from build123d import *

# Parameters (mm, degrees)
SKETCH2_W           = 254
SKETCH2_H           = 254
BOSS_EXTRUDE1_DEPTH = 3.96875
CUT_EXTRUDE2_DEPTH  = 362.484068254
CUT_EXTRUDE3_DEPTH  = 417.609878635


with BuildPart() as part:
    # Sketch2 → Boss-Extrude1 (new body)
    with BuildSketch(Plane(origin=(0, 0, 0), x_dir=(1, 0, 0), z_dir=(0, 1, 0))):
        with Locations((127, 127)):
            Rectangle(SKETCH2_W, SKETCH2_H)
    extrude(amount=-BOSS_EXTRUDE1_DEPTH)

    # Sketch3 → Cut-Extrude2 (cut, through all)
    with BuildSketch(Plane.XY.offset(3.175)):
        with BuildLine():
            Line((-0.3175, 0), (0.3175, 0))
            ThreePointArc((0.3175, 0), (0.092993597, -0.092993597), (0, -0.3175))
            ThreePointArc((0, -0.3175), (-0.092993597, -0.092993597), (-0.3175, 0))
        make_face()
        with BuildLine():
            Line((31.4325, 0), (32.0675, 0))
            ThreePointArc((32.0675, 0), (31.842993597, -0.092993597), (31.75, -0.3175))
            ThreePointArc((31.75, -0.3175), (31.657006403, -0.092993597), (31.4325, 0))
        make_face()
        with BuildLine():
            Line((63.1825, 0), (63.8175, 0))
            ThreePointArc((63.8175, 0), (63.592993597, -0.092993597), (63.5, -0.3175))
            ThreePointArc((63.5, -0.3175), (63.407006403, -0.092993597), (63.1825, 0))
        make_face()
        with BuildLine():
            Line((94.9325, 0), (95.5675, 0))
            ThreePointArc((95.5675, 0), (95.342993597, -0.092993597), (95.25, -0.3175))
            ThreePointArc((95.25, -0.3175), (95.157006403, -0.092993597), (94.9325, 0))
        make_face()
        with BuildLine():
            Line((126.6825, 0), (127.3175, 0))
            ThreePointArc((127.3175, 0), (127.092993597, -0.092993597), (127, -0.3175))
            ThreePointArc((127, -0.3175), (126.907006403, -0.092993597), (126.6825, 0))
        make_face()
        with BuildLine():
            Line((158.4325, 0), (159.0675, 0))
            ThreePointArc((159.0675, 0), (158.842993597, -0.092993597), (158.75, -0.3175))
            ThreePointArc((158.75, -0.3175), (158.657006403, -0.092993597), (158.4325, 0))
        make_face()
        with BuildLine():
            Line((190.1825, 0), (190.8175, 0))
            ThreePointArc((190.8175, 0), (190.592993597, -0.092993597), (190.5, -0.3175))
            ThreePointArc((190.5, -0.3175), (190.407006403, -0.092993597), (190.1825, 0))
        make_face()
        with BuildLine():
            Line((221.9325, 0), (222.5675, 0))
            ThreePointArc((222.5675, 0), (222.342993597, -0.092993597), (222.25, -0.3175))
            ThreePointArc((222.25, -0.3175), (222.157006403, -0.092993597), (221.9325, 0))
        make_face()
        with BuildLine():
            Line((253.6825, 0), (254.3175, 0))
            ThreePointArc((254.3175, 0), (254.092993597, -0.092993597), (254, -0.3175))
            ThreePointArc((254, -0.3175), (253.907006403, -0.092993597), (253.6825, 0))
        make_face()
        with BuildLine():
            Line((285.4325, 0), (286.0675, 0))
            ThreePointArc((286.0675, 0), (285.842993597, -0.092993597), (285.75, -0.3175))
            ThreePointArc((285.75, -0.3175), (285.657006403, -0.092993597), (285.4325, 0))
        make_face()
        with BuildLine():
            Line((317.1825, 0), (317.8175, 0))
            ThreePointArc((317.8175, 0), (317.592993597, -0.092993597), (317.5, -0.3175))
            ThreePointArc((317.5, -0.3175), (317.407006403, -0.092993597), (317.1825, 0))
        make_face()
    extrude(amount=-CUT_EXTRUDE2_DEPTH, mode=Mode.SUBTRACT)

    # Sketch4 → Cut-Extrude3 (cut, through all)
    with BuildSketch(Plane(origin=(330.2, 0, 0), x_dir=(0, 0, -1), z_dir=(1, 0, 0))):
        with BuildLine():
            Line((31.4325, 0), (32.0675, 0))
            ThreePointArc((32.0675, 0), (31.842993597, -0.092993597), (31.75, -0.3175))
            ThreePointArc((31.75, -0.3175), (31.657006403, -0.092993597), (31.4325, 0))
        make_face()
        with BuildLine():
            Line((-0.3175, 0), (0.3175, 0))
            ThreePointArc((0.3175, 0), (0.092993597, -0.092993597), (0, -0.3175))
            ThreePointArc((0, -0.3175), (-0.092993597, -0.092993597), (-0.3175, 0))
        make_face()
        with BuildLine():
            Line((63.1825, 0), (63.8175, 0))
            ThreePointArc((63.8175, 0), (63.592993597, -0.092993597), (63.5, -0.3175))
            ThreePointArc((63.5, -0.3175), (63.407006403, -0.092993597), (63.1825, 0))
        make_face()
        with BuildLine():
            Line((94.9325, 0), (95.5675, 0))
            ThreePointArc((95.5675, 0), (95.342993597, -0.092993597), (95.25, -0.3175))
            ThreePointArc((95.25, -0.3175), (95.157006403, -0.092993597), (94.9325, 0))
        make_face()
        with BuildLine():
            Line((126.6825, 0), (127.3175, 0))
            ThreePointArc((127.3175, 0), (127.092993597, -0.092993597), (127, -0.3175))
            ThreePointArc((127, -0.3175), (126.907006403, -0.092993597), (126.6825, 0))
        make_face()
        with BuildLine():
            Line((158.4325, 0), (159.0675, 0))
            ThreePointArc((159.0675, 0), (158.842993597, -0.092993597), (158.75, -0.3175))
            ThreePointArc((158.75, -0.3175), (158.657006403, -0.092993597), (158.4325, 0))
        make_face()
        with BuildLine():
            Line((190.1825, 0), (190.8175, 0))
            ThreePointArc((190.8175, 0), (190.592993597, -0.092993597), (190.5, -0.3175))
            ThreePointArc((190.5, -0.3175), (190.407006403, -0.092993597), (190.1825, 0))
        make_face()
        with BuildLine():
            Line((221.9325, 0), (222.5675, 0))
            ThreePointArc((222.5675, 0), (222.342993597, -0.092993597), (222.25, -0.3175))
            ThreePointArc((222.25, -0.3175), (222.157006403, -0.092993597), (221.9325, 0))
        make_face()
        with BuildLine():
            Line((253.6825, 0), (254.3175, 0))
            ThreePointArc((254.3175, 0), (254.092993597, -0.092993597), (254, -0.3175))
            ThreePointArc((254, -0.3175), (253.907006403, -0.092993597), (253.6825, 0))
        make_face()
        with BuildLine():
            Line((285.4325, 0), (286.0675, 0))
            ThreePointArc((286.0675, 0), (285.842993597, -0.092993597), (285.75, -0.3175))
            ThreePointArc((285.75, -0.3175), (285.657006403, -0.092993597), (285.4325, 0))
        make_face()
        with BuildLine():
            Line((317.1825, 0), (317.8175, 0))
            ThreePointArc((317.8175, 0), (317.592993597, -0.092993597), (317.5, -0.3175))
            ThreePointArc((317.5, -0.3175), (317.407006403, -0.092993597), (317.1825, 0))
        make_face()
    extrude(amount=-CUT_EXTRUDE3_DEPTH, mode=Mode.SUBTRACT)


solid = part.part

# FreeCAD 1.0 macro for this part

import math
import FreeCAD as App
import Part
import Sketcher

V = App.Vector
Q = App.Units.Quantity

doc = App.newDocument("Part")
body = doc.addObject("PartDesign::Body", "Body")

# Sketch on XZ plane
sketch1 = doc.addObject("Sketcher::SketchObject", "Sketch")
body.addObject(sketch1)
sketch1.AttachmentSupport = (doc.XZ_Plane, [""])
sketch1.MapMode = "FlatFace"
sketch1.addGeometry([
    Part.LineSegment(V(0, -254, 0), V(0, 0, 0)),
    Part.LineSegment(V(0, 0, 0), V(254, 0, 0)),
    Part.LineSegment(V(254, 0, 0), V(254, -254, 0)),
    Part.LineSegment(V(254, -254, 0), V(0, -254, 0)),
], False)
sketch1.addConstraint([
    Sketcher.Constraint("Coincident", 0, 2, 1, 1),
    Sketcher.Constraint("Coincident", 1, 2, 2, 1),
    Sketcher.Constraint("Coincident", 2, 2, 3, 1),
    Sketcher.Constraint("Coincident", 3, 2, 0, 1),
    Sketcher.Constraint("Vertical", 0),
    Sketcher.Constraint("Horizontal", 1),
    Sketcher.Constraint("Vertical", 2),
    Sketcher.Constraint("Horizontal", 3),
    Sketcher.Constraint("Coincident", 0, 2, -1, 1),
    Sketcher.Constraint("Equal", 3, 0),
    Sketcher.Constraint("DistanceX", 1, 1, 1, 2, Q("10 in")),
])
pad1 = doc.addObject("PartDesign::Pad", "Pad")
body.addObject(pad1)
pad1.Profile = sketch1
pad1.Length = Q("0.15625 in")

# Sketch on XY plane
sketch2 = doc.addObject("Sketcher::SketchObject", "Sketch001")
body.addObject(sketch2)
sketch2.AttachmentSupport = (doc.XY_Plane, [""])
sketch2.MapMode = "FlatFace"
sketch2.AttachmentOffset = App.Placement(V(0, 0, 0.125 * 25.4), App.Rotation())
sketch2.addGeometry([
    Part.LineSegment(V(0.32, 0, 0), V(-0.32, 0, 0)),  # 0
    Part.ArcOfCircle(Part.Circle(V(-0.32, -0.32, 0), V(0, 0, 1), 0.32), math.radians(0), math.radians(90)),  # 1
    Part.ArcOfCircle(Part.Circle(V(0.32, -0.32, 0), V(0, 0, 1), 0.32), math.radians(90), math.radians(180)),  # 2
    Part.LineSegment(V(32.07, 0, 0), V(31.43, 0, 0)),  # 3
    Part.ArcOfCircle(Part.Circle(V(31.43, -0.32, 0), V(0, 0, 1), 0.32), math.radians(0), math.radians(90)),  # 4
    Part.ArcOfCircle(Part.Circle(V(32.07, -0.32, 0), V(0, 0, 1), 0.32), math.radians(90), math.radians(180)),  # 5
    Part.LineSegment(V(63.82, 0, 0), V(63.18, 0, 0)),  # 6
    Part.ArcOfCircle(Part.Circle(V(63.18, -0.32, 0), V(0, 0, 1), 0.32), math.radians(0), math.radians(90)),  # 7
    Part.ArcOfCircle(Part.Circle(V(63.82, -0.32, 0), V(0, 0, 1), 0.32), math.radians(90), math.radians(180)),  # 8
    Part.LineSegment(V(95.57, 0, 0), V(94.93, 0, 0)),  # 9
    Part.ArcOfCircle(Part.Circle(V(94.93, -0.32, 0), V(0, 0, 1), 0.32), math.radians(0), math.radians(90)),  # 10
    Part.ArcOfCircle(Part.Circle(V(95.57, -0.32, 0), V(0, 0, 1), 0.32), math.radians(90), math.radians(180)),  # 11
    Part.LineSegment(V(127.32, 0, 0), V(126.68, 0, 0)),  # 12
    Part.ArcOfCircle(Part.Circle(V(126.68, -0.32, 0), V(0, 0, 1), 0.32), math.radians(0), math.radians(90)),  # 13
    Part.ArcOfCircle(Part.Circle(V(127.32, -0.32, 0), V(0, 0, 1), 0.32), math.radians(90), math.radians(180)),  # 14
    Part.LineSegment(V(159.07, 0, 0), V(158.43, 0, 0)),  # 15
    Part.ArcOfCircle(Part.Circle(V(158.43, -0.32, 0), V(0, 0, 1), 0.32), math.radians(0), math.radians(90)),  # 16
    Part.ArcOfCircle(Part.Circle(V(159.07, -0.32, 0), V(0, 0, 1), 0.32), math.radians(90), math.radians(180)),  # 17
    Part.LineSegment(V(190.82, 0, 0), V(190.18, 0, 0)),  # 18
    Part.ArcOfCircle(Part.Circle(V(190.18, -0.32, 0), V(0, 0, 1), 0.32), math.radians(0), math.radians(90)),  # 19
    Part.ArcOfCircle(Part.Circle(V(190.82, -0.32, 0), V(0, 0, 1), 0.32), math.radians(90), math.radians(180)),  # 20
    Part.LineSegment(V(222.57, 0, 0), V(221.93, 0, 0)),  # 21
    Part.ArcOfCircle(Part.Circle(V(221.93, -0.32, 0), V(0, 0, 1), 0.32), math.radians(0), math.radians(90)),  # 22
    Part.ArcOfCircle(Part.Circle(V(222.57, -0.32, 0), V(0, 0, 1), 0.32), math.radians(90), math.radians(180)),  # 23
    Part.LineSegment(V(254.32, 0, 0), V(253.68, 0, 0)),  # 24
    Part.ArcOfCircle(Part.Circle(V(253.68, -0.32, 0), V(0, 0, 1), 0.32), math.radians(0), math.radians(90)),  # 25
    Part.ArcOfCircle(Part.Circle(V(254.32, -0.32, 0), V(0, 0, 1), 0.32), math.radians(90), math.radians(180)),  # 26
    Part.LineSegment(V(286.07, 0, 0), V(285.43, 0, 0)),  # 27
    Part.ArcOfCircle(Part.Circle(V(285.43, -0.32, 0), V(0, 0, 1), 0.32), math.radians(0), math.radians(90)),  # 28
    Part.ArcOfCircle(Part.Circle(V(286.07, -0.32, 0), V(0, 0, 1), 0.32), math.radians(90), math.radians(180)),  # 29
    Part.LineSegment(V(317.82, 0, 0), V(317.18, 0, 0)),  # 30
    Part.ArcOfCircle(Part.Circle(V(317.18, -0.32, 0), V(0, 0, 1), 0.32), math.radians(0), math.radians(90)),  # 31
    Part.ArcOfCircle(Part.Circle(V(317.82, -0.32, 0), V(0, 0, 1), 0.32), math.radians(90), math.radians(180)),  # 32
], False)
sketch2.addConstraint([
    Sketcher.Constraint("Tangent", 0, 2, 1, 2),
    Sketcher.Constraint("Tangent", 1, 1, 2, 2),
    Sketcher.Constraint("Tangent", 2, 1, 0, 1),
    Sketcher.Constraint("Tangent", 3, 2, 4, 2),
    Sketcher.Constraint("Tangent", 4, 1, 5, 2),
    Sketcher.Constraint("Tangent", 5, 1, 3, 1),
    Sketcher.Constraint("Tangent", 6, 2, 7, 2),
    Sketcher.Constraint("Tangent", 7, 1, 8, 2),
    Sketcher.Constraint("Tangent", 8, 1, 6, 1),
    Sketcher.Constraint("Tangent", 9, 2, 10, 2),
    Sketcher.Constraint("Tangent", 10, 1, 11, 2),
    Sketcher.Constraint("Tangent", 11, 1, 9, 1),
    Sketcher.Constraint("Tangent", 12, 2, 13, 2),
    Sketcher.Constraint("Tangent", 13, 1, 14, 2),
    Sketcher.Constraint("Tangent", 14, 1, 12, 1),
    Sketcher.Constraint("Tangent", 15, 2, 16, 2),
    Sketcher.Constraint("Tangent", 16, 1, 17, 2),
    Sketcher.Constraint("Tangent", 17, 1, 15, 1),
    Sketcher.Constraint("Tangent", 18, 2, 19, 2),
    Sketcher.Constraint("Tangent", 19, 1, 20, 2),
    Sketcher.Constraint("Tangent", 20, 1, 18, 1),
    Sketcher.Constraint("Tangent", 21, 2, 22, 2),
    Sketcher.Constraint("Tangent", 22, 1, 23, 2),
    Sketcher.Constraint("Tangent", 23, 1, 21, 1),
    Sketcher.Constraint("Tangent", 24, 2, 25, 2),
    Sketcher.Constraint("Tangent", 25, 1, 26, 2),
    Sketcher.Constraint("Tangent", 26, 1, 24, 1),
    Sketcher.Constraint("Tangent", 27, 2, 28, 2),
    Sketcher.Constraint("Tangent", 28, 1, 29, 2),
    Sketcher.Constraint("Tangent", 29, 1, 27, 1),
    Sketcher.Constraint("Tangent", 30, 2, 31, 2),
    Sketcher.Constraint("Tangent", 31, 1, 32, 2),
    Sketcher.Constraint("Tangent", 32, 1, 30, 1),
    Sketcher.Constraint("Horizontal", 0),
    Sketcher.Constraint("Horizontal", 3),
    Sketcher.Constraint("Horizontal", 6),
    Sketcher.Constraint("Horizontal", 9),
    Sketcher.Constraint("Horizontal", 12),
    Sketcher.Constraint("Horizontal", 15),
    Sketcher.Constraint("Horizontal", 18),
    Sketcher.Constraint("Horizontal", 21),
    Sketcher.Constraint("Horizontal", 24),
    Sketcher.Constraint("Horizontal", 27),
    Sketcher.Constraint("Horizontal", 30),
    Sketcher.Constraint("Equal", 1, 2),
    Sketcher.Constraint("Equal", 2, 4),
    Sketcher.Constraint("Equal", 4, 5),
    Sketcher.Constraint("Equal", 5, 7),
    Sketcher.Constraint("Equal", 7, 8),
    Sketcher.Constraint("Equal", 8, 10),
    Sketcher.Constraint("Equal", 10, 11),
    Sketcher.Constraint("Equal", 11, 13),
    Sketcher.Constraint("Equal", 13, 14),
    Sketcher.Constraint("Equal", 14, 16),
    Sketcher.Constraint("Equal", 16, 17),
    Sketcher.Constraint("Equal", 17, 19),
    Sketcher.Constraint("Equal", 19, 20),
    Sketcher.Constraint("Equal", 20, 22),
    Sketcher.Constraint("Equal", 22, 23),
    Sketcher.Constraint("Equal", 23, 25),
    Sketcher.Constraint("Equal", 25, 26),
    Sketcher.Constraint("Equal", 26, 28),
    Sketcher.Constraint("Equal", 28, 29),
    Sketcher.Constraint("Equal", 29, 31),
    Sketcher.Constraint("Equal", 31, 32),
    Sketcher.Constraint("Symmetric", 0, 2, 2, 1, -1, 1),
    Sketcher.Constraint("PointOnObject", 3, 2, -1),
    Sketcher.Constraint("PointOnObject", 6, 2, -1),
    Sketcher.Constraint("PointOnObject", 9, 2, -1),
    Sketcher.Constraint("PointOnObject", 12, 2, -1),
    Sketcher.Constraint("PointOnObject", 15, 2, -1),
    Sketcher.Constraint("PointOnObject", 18, 2, -1),
    Sketcher.Constraint("PointOnObject", 21, 2, -1),
    Sketcher.Constraint("PointOnObject", 24, 2, -1),
    Sketcher.Constraint("PointOnObject", 27, 2, -1),
    Sketcher.Constraint("PointOnObject", 30, 2, -1),
    Sketcher.Constraint("DistanceX", -1, 1, 13, 1, Q("5 in")),
    Sketcher.Constraint("DistanceX", -1, 1, 25, 1, Q("10 in")),
    Sketcher.Constraint("DistanceX", -1, 1, 7, 1, Q("2.5 in")),
    Sketcher.Constraint("DistanceX", -1, 1, 19, 1, Q("7.5 in")),
    Sketcher.Constraint("DistanceX", -1, 1, 31, 1, Q("12.5 in")),
    Sketcher.Constraint("Radius", 1, Q("0.0125 in")),
    Sketcher.Constraint("DistanceX", 4, 3, 10, 3, Q("2.5 in")),
    Sketcher.Constraint("DistanceX", 10, 3, 16, 3, Q("2.5 in")),
    Sketcher.Constraint("DistanceX", 16, 3, 22, 3, Q("2.5 in")),
    Sketcher.Constraint("DistanceX", 22, 3, 28, 3, Q("2.5 in")),
    Sketcher.Constraint("DistanceX", -1, 1, 4, 1, Q("1.25 in")),
])
pocket1 = doc.addObject("PartDesign::Pocket", "Pocket")
body.addObject(pocket1)
pocket1.Profile = sketch2
pocket1.Type = "ThroughAll"

# Sketch on YZ plane
sketch3 = doc.addObject("Sketcher::SketchObject", "Sketch002")
body.addObject(sketch3)
sketch3.AttachmentSupport = (doc.YZ_Plane, [""])
sketch3.MapMode = "FlatFace"
sketch3.AttachmentOffset = App.Placement(V(0, 0, 13 * 25.4), App.Rotation())
sketch3.addGeometry([
    Part.LineSegment(V(0, -32.07, 0), V(0, -31.43, 0)),  # 0
    Part.ArcOfCircle(Part.Circle(V(-0.32, -31.43, 0), V(0, 0, 1), 0.32), math.radians(-90), math.radians(0)),  # 1
    Part.ArcOfCircle(Part.Circle(V(-0.32, -32.07, 0), V(0, 0, 1), 0.32), math.radians(0), math.radians(90)),  # 2
    Part.LineSegment(V(0, -0.32, 0), V(0, 0.32, 0)),  # 3
    Part.ArcOfCircle(Part.Circle(V(-0.32, 0.32, 0), V(0, 0, 1), 0.32), math.radians(-90), math.radians(0)),  # 4
    Part.ArcOfCircle(Part.Circle(V(-0.32, -0.32, 0), V(0, 0, 1), 0.32), math.radians(0), math.radians(90)),  # 5
    Part.LineSegment(V(0, -63.82, 0), V(0, -63.18, 0)),  # 6
    Part.ArcOfCircle(Part.Circle(V(-0.32, -63.18, 0), V(0, 0, 1), 0.32), math.radians(-90), math.radians(0)),  # 7
    Part.ArcOfCircle(Part.Circle(V(-0.32, -63.82, 0), V(0, 0, 1), 0.32), math.radians(0), math.radians(90)),  # 8
    Part.LineSegment(V(0, -95.57, 0), V(0, -94.93, 0)),  # 9
    Part.ArcOfCircle(Part.Circle(V(-0.32, -94.93, 0), V(0, 0, 1), 0.32), math.radians(-90), math.radians(0)),  # 10
    Part.ArcOfCircle(Part.Circle(V(-0.32, -95.57, 0), V(0, 0, 1), 0.32), math.radians(0), math.radians(90)),  # 11
    Part.LineSegment(V(0, -127.32, 0), V(0, -126.68, 0)),  # 12
    Part.ArcOfCircle(Part.Circle(V(-0.32, -126.68, 0), V(0, 0, 1), 0.32), math.radians(-90), math.radians(0)),  # 13
    Part.ArcOfCircle(Part.Circle(V(-0.32, -127.32, 0), V(0, 0, 1), 0.32), math.radians(0), math.radians(90)),  # 14
    Part.LineSegment(V(0, -159.07, 0), V(0, -158.43, 0)),  # 15
    Part.ArcOfCircle(Part.Circle(V(-0.32, -158.43, 0), V(0, 0, 1), 0.32), math.radians(-90), math.radians(0)),  # 16
    Part.ArcOfCircle(Part.Circle(V(-0.32, -159.07, 0), V(0, 0, 1), 0.32), math.radians(0), math.radians(90)),  # 17
    Part.LineSegment(V(0, -190.82, 0), V(0, -190.18, 0)),  # 18
    Part.ArcOfCircle(Part.Circle(V(-0.32, -190.18, 0), V(0, 0, 1), 0.32), math.radians(-90), math.radians(0)),  # 19
    Part.ArcOfCircle(Part.Circle(V(-0.32, -190.82, 0), V(0, 0, 1), 0.32), math.radians(0), math.radians(90)),  # 20
    Part.LineSegment(V(0, -222.57, 0), V(0, -221.93, 0)),  # 21
    Part.ArcOfCircle(Part.Circle(V(-0.32, -221.93, 0), V(0, 0, 1), 0.32), math.radians(-90), math.radians(0)),  # 22
    Part.ArcOfCircle(Part.Circle(V(-0.32, -222.57, 0), V(0, 0, 1), 0.32), math.radians(0), math.radians(90)),  # 23
    Part.LineSegment(V(0, -254.32, 0), V(0, -253.68, 0)),  # 24
    Part.ArcOfCircle(Part.Circle(V(-0.32, -253.68, 0), V(0, 0, 1), 0.32), math.radians(-90), math.radians(0)),  # 25
    Part.ArcOfCircle(Part.Circle(V(-0.32, -254.32, 0), V(0, 0, 1), 0.32), math.radians(0), math.radians(90)),  # 26
    Part.LineSegment(V(0, -286.07, 0), V(0, -285.43, 0)),  # 27
    Part.ArcOfCircle(Part.Circle(V(-0.32, -285.43, 0), V(0, 0, 1), 0.32), math.radians(-90), math.radians(0)),  # 28
    Part.ArcOfCircle(Part.Circle(V(-0.32, -286.07, 0), V(0, 0, 1), 0.32), math.radians(0), math.radians(90)),  # 29
    Part.LineSegment(V(0, -317.82, 0), V(0, -317.18, 0)),  # 30
    Part.ArcOfCircle(Part.Circle(V(-0.32, -317.18, 0), V(0, 0, 1), 0.32), math.radians(-90), math.radians(0)),  # 31
    Part.ArcOfCircle(Part.Circle(V(-0.32, -317.82, 0), V(0, 0, 1), 0.32), math.radians(0), math.radians(90)),  # 32
], False)
sketch3.addConstraint([
    Sketcher.Constraint("Tangent", 0, 2, 1, 2),
    Sketcher.Constraint("Tangent", 1, 1, 2, 2),
    Sketcher.Constraint("Tangent", 2, 1, 0, 1),
    Sketcher.Constraint("Tangent", 3, 2, 4, 2),
    Sketcher.Constraint("Tangent", 4, 1, 5, 2),
    Sketcher.Constraint("Tangent", 5, 1, 3, 1),
    Sketcher.Constraint("Tangent", 6, 2, 7, 2),
    Sketcher.Constraint("Tangent", 7, 1, 8, 2),
    Sketcher.Constraint("Tangent", 8, 1, 6, 1),
    Sketcher.Constraint("Tangent", 9, 2, 10, 2),
    Sketcher.Constraint("Tangent", 10, 1, 11, 2),
    Sketcher.Constraint("Tangent", 11, 1, 9, 1),
    Sketcher.Constraint("Tangent", 12, 2, 13, 2),
    Sketcher.Constraint("Tangent", 13, 1, 14, 2),
    Sketcher.Constraint("Tangent", 14, 1, 12, 1),
    Sketcher.Constraint("Tangent", 15, 2, 16, 2),
    Sketcher.Constraint("Tangent", 16, 1, 17, 2),
    Sketcher.Constraint("Tangent", 17, 1, 15, 1),
    Sketcher.Constraint("Tangent", 18, 2, 19, 2),
    Sketcher.Constraint("Tangent", 19, 1, 20, 2),
    Sketcher.Constraint("Tangent", 20, 1, 18, 1),
    Sketcher.Constraint("Tangent", 21, 2, 22, 2),
    Sketcher.Constraint("Tangent", 22, 1, 23, 2),
    Sketcher.Constraint("Tangent", 23, 1, 21, 1),
    Sketcher.Constraint("Tangent", 24, 2, 25, 2),
    Sketcher.Constraint("Tangent", 25, 1, 26, 2),
    Sketcher.Constraint("Tangent", 26, 1, 24, 1),
    Sketcher.Constraint("Tangent", 27, 2, 28, 2),
    Sketcher.Constraint("Tangent", 28, 1, 29, 2),
    Sketcher.Constraint("Tangent", 29, 1, 27, 1),
    Sketcher.Constraint("Tangent", 30, 2, 31, 2),
    Sketcher.Constraint("Tangent", 31, 1, 32, 2),
    Sketcher.Constraint("Tangent", 32, 1, 30, 1),
    Sketcher.Constraint("Vertical", 0),
    Sketcher.Constraint("Vertical", 3),
    Sketcher.Constraint("Vertical", 6),
    Sketcher.Constraint("Vertical", 9),
    Sketcher.Constraint("Vertical", 12),
    Sketcher.Constraint("Vertical", 15),
    Sketcher.Constraint("Vertical", 18),
    Sketcher.Constraint("Vertical", 21),
    Sketcher.Constraint("Vertical", 24),
    Sketcher.Constraint("Vertical", 27),
    Sketcher.Constraint("Vertical", 30),
    Sketcher.Constraint("Equal", 1, 2),
    Sketcher.Constraint("Equal", 2, 4),
    Sketcher.Constraint("Equal", 4, 5),
    Sketcher.Constraint("Equal", 5, 7),
    Sketcher.Constraint("Equal", 7, 8),
    Sketcher.Constraint("Equal", 8, 10),
    Sketcher.Constraint("Equal", 10, 11),
    Sketcher.Constraint("Equal", 11, 13),
    Sketcher.Constraint("Equal", 13, 14),
    Sketcher.Constraint("Equal", 14, 16),
    Sketcher.Constraint("Equal", 16, 17),
    Sketcher.Constraint("Equal", 17, 19),
    Sketcher.Constraint("Equal", 19, 20),
    Sketcher.Constraint("Equal", 20, 22),
    Sketcher.Constraint("Equal", 22, 23),
    Sketcher.Constraint("Equal", 23, 25),
    Sketcher.Constraint("Equal", 25, 26),
    Sketcher.Constraint("Equal", 26, 28),
    Sketcher.Constraint("Equal", 28, 29),
    Sketcher.Constraint("Equal", 29, 31),
    Sketcher.Constraint("Equal", 31, 32),
    Sketcher.Constraint("Symmetric", 3, 2, 5, 1, -1, 1),
    Sketcher.Constraint("PointOnObject", 0, 2, -2),
    Sketcher.Constraint("PointOnObject", 6, 2, -2),
    Sketcher.Constraint("PointOnObject", 9, 2, -2),
    Sketcher.Constraint("PointOnObject", 12, 2, -2),
    Sketcher.Constraint("PointOnObject", 15, 2, -2),
    Sketcher.Constraint("PointOnObject", 18, 2, -2),
    Sketcher.Constraint("PointOnObject", 21, 2, -2),
    Sketcher.Constraint("PointOnObject", 24, 2, -2),
    Sketcher.Constraint("PointOnObject", 27, 2, -2),
    Sketcher.Constraint("PointOnObject", 30, 2, -2),
    Sketcher.Constraint("DistanceY", 13, 1, -1, 1, Q("5 in")),
    Sketcher.Constraint("DistanceY", 25, 1, -1, 1, Q("10 in")),
    Sketcher.Constraint("DistanceY", 7, 1, -1, 1, Q("2.5 in")),
    Sketcher.Constraint("DistanceY", 19, 1, -1, 1, Q("7.5 in")),
    Sketcher.Constraint("DistanceY", 31, 1, -1, 1, Q("12.5 in")),
    Sketcher.Constraint("Radius", 1, Q("0.0125 in")),
    Sketcher.Constraint("DistanceY", 10, 3, 1, 3, Q("2.5 in")),
    Sketcher.Constraint("DistanceY", 16, 3, 10, 3, Q("2.5 in")),
    Sketcher.Constraint("DistanceY", 22, 3, 16, 3, Q("2.5 in")),
    Sketcher.Constraint("DistanceY", 28, 3, 22, 3, Q("2.5 in")),
    Sketcher.Constraint("DistanceY", 1, 1, -1, 1, Q("1.25 in")),
])
pocket2 = doc.addObject("PartDesign::Pocket", "Pocket001")
body.addObject(pocket2)
pocket2.Profile = sketch3
pocket2.Type = "ThroughAll"

doc.recompute()
